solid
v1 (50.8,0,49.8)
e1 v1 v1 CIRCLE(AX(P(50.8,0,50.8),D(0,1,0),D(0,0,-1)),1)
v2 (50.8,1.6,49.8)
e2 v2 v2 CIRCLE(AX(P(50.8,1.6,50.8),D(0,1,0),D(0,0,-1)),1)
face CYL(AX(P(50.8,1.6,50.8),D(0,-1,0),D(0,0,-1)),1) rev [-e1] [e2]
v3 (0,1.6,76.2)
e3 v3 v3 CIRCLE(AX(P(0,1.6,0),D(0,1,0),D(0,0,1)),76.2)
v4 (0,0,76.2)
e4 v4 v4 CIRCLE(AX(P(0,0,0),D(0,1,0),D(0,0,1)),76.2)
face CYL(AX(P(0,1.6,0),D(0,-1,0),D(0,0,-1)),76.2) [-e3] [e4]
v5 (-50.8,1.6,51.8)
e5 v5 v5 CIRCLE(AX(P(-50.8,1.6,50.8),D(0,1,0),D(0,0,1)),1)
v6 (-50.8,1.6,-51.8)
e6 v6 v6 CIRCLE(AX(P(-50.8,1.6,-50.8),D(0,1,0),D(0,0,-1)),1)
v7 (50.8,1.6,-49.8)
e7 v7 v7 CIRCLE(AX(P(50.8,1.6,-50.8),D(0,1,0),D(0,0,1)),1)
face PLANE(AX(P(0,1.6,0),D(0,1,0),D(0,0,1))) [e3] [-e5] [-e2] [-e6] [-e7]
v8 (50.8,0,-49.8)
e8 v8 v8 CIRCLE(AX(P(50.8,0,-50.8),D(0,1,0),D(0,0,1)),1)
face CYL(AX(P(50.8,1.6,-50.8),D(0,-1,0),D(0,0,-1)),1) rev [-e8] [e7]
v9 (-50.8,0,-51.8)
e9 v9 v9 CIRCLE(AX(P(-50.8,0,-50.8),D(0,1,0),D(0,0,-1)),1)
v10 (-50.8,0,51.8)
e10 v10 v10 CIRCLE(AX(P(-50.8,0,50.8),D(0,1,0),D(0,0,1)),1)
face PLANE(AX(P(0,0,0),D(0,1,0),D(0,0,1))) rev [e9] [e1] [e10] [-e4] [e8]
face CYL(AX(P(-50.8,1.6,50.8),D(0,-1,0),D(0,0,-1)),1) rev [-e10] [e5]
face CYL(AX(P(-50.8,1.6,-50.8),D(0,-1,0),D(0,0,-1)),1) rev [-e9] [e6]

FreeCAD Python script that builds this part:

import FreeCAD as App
import Part
import Sketcher
from FreeCAD import Vector
Q = App.Units.Quantity

doc = App.newDocument("Part")
body = doc.addObject("PartDesign::Body", "Body")

# Sketch on XZ plane
sketch1 = doc.addObject("Sketcher::SketchObject", "Sketch")
body.addObject(sketch1)
sketch1.AttachmentSupport = (doc.XZ_Plane, [""])
sketch1.MapMode = "FlatFace"
sketch1.addGeometry([
    Part.Circle(Vector(0, 0, 0), Vector(0, 0, 1), 76.2),  # 0
    Part.Circle(Vector(-50.8, 50.8, 0), Vector(0, 0, 1), 1),  # 1
    Part.Circle(Vector(50.8, 50.8, 0), Vector(0, 0, 1), 1),  # 2
    Part.Circle(Vector(-50.8, -50.8, 0), Vector(0, 0, 1), 1),  # 3
    Part.Circle(Vector(50.8, -50.8, 0), Vector(0, 0, 1), 1),  # 4
], False)
sketch1.addConstraint([
    Sketcher.Constraint("Coincident", 0, 3, -1, 1),
    Sketcher.Constraint("Equal", 1, 2),
    Sketcher.Constraint("Equal", 2, 3),
    Sketcher.Constraint("Equal", 3, 4),
    Sketcher.Constraint("Symmetric", 2, 3, 3, 3, -1, 1),
    Sketcher.Constraint("Symmetric", 1, 3, 4, 3, -1, 1),
    Sketcher.Constraint("Symmetric", 1, 3, 2, 3, -2),
    Sketcher.Constraint("Diameter", 1, Q("2 mm")),
    Sketcher.Constraint("Diameter", 0, Q("152.4 mm")),
    Sketcher.Constraint("DistanceX", 1, 3, -1, 1, Q("50.8 mm")),
    Sketcher.Constraint("DistanceY", -1, 1, 1, 3, Q("50.8 mm")),
])
pad1 = doc.addObject("PartDesign::Pad", "Pad")
body.addObject(pad1)
pad1.Profile = sketch1
pad1.Length = 1.6
pad1.Reversed = True

doc.recompute()
